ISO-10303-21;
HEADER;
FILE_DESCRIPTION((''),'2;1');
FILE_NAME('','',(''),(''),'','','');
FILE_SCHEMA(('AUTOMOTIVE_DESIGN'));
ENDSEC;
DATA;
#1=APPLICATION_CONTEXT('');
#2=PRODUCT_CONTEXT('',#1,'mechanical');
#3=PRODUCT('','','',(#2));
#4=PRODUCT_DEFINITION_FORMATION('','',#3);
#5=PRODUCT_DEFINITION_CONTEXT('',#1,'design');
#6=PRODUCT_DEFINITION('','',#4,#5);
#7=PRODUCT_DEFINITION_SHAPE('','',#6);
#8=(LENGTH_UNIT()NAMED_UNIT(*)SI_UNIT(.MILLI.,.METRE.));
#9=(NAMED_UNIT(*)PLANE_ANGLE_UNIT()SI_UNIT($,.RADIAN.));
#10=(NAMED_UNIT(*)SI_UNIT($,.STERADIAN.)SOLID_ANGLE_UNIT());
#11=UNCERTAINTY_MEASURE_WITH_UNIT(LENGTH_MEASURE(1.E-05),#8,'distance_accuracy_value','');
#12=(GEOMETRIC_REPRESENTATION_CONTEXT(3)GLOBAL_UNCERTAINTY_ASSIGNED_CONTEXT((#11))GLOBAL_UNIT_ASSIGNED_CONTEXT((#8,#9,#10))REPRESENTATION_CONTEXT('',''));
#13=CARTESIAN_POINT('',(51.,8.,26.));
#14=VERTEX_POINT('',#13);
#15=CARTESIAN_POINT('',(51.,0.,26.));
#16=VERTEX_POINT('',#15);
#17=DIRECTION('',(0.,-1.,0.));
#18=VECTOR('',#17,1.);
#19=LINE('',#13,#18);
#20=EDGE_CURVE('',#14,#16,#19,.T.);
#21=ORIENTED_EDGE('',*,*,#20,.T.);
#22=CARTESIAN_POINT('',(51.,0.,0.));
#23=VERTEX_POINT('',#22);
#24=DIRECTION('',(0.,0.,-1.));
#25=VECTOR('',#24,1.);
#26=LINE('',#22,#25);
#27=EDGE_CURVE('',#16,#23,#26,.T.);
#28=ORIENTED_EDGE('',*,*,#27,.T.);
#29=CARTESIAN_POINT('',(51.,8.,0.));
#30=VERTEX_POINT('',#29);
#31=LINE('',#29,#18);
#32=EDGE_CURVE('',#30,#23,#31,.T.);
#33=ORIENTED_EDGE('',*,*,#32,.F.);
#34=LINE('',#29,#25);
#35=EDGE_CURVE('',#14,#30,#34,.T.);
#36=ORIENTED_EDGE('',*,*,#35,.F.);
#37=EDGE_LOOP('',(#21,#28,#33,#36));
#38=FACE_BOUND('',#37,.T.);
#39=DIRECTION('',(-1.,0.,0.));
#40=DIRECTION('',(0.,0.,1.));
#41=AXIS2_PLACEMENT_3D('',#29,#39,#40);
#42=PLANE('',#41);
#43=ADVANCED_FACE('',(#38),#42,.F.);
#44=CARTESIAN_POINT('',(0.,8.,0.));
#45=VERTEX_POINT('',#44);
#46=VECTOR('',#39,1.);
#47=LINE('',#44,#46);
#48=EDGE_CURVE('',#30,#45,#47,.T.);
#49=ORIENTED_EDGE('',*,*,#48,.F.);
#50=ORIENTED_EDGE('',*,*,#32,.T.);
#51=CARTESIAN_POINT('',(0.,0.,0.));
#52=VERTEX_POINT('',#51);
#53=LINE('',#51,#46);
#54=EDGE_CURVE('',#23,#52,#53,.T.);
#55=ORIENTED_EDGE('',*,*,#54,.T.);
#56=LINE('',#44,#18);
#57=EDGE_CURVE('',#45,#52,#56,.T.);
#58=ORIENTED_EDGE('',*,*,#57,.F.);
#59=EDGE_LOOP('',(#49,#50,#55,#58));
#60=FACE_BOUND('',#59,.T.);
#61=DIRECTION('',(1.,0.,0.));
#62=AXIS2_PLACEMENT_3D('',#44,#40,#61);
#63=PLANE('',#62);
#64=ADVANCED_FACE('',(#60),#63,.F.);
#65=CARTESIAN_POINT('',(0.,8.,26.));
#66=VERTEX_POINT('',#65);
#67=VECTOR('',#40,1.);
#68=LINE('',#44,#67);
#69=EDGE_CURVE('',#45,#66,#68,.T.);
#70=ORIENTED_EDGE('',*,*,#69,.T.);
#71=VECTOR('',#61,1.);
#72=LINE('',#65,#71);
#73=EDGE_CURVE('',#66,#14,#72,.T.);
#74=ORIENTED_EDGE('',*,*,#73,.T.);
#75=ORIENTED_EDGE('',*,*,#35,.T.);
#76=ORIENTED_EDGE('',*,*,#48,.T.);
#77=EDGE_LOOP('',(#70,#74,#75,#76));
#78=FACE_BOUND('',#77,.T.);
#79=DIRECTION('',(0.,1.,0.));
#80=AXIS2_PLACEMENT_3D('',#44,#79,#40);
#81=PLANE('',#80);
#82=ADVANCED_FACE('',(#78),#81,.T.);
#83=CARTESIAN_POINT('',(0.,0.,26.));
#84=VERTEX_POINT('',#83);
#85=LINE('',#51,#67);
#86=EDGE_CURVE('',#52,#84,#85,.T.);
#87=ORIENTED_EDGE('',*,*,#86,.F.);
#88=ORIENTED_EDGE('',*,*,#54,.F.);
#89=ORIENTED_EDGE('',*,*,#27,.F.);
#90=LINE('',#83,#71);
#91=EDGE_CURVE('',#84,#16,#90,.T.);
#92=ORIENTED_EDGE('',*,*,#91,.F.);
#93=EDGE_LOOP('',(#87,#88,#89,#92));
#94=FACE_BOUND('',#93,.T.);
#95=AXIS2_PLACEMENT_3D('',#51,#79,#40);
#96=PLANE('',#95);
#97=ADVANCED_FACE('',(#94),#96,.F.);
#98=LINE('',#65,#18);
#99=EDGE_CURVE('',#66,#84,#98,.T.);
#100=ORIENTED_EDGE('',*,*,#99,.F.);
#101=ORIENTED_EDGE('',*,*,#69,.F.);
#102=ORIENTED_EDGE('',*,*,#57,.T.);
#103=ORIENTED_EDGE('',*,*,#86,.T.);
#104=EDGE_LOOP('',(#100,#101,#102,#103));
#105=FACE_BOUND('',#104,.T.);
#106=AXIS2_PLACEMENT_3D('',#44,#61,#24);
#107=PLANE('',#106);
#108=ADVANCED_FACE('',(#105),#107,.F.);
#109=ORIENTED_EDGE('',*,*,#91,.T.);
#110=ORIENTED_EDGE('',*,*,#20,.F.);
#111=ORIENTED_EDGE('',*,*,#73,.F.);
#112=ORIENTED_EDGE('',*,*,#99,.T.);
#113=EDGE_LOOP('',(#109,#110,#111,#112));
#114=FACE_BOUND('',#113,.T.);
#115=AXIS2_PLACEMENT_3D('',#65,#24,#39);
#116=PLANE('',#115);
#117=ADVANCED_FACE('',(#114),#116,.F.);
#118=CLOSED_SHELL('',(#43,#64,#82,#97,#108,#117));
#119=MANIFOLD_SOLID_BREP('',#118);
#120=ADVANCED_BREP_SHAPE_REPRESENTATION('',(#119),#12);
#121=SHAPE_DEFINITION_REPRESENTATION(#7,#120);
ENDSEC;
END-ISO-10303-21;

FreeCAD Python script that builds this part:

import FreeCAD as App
import Part
import Sketcher
from FreeCAD import Vector

doc = App.newDocument("Part")
body = doc.addObject("PartDesign::Body", "Body")

sketch1 = body.newObject("Sketcher::SketchObject", "Sketch")
sketch1.AttachmentSupport = (doc.getObject("XZ_Plane"), [""])
sketch1.MapMode = "FlatFace"
sketch1.addGeometry(Part.LineSegment(Vector(0, 0, 0), Vector(0, 26, 0)), False)
sketch1.addGeometry(Part.LineSegment(Vector(0, 26, 0), Vector(51, 26, 0)), False)
sketch1.addGeometry(Part.LineSegment(Vector(51, 26, 0), Vector(51, 0, 0)), False)
sketch1.addGeometry(Part.LineSegment(Vector(51, 0, 0), Vector(0, 0, 0)), False)
sketch1.addConstraint(Sketcher.Constraint("Coincident", 0, 2, 1, 1))
sketch1.addConstraint(Sketcher.Constraint("Coincident", 1, 2, 2, 1))
sketch1.addConstraint(Sketcher.Constraint("Coincident", 2, 2, 3, 1))
sketch1.addConstraint(Sketcher.Constraint("Coincident", 3, 2, 0, 1))
sketch1.addConstraint(Sketcher.Constraint("Vertical", 0))
sketch1.addConstraint(Sketcher.Constraint("Horizontal", 1))
sketch1.addConstraint(Sketcher.Constraint("Vertical", 2))
sketch1.addConstraint(Sketcher.Constraint("Horizontal", 3))
sketch1.addConstraint(Sketcher.Constraint("Coincident", 3, 2, -1, 1))
sketch1.addConstraint(Sketcher.Constraint("DistanceX", 1, 1, 1, 2, 51.0))
sketch1.addConstraint(Sketcher.Constraint("DistanceY", 0, 1, 0, 2, 26.0))
pad1 = body.newObject("PartDesign::Pad", "Pad")
pad1.Profile = sketch1
pad1.Length = 8
pad1.Reversed = True

doc.recompute()
